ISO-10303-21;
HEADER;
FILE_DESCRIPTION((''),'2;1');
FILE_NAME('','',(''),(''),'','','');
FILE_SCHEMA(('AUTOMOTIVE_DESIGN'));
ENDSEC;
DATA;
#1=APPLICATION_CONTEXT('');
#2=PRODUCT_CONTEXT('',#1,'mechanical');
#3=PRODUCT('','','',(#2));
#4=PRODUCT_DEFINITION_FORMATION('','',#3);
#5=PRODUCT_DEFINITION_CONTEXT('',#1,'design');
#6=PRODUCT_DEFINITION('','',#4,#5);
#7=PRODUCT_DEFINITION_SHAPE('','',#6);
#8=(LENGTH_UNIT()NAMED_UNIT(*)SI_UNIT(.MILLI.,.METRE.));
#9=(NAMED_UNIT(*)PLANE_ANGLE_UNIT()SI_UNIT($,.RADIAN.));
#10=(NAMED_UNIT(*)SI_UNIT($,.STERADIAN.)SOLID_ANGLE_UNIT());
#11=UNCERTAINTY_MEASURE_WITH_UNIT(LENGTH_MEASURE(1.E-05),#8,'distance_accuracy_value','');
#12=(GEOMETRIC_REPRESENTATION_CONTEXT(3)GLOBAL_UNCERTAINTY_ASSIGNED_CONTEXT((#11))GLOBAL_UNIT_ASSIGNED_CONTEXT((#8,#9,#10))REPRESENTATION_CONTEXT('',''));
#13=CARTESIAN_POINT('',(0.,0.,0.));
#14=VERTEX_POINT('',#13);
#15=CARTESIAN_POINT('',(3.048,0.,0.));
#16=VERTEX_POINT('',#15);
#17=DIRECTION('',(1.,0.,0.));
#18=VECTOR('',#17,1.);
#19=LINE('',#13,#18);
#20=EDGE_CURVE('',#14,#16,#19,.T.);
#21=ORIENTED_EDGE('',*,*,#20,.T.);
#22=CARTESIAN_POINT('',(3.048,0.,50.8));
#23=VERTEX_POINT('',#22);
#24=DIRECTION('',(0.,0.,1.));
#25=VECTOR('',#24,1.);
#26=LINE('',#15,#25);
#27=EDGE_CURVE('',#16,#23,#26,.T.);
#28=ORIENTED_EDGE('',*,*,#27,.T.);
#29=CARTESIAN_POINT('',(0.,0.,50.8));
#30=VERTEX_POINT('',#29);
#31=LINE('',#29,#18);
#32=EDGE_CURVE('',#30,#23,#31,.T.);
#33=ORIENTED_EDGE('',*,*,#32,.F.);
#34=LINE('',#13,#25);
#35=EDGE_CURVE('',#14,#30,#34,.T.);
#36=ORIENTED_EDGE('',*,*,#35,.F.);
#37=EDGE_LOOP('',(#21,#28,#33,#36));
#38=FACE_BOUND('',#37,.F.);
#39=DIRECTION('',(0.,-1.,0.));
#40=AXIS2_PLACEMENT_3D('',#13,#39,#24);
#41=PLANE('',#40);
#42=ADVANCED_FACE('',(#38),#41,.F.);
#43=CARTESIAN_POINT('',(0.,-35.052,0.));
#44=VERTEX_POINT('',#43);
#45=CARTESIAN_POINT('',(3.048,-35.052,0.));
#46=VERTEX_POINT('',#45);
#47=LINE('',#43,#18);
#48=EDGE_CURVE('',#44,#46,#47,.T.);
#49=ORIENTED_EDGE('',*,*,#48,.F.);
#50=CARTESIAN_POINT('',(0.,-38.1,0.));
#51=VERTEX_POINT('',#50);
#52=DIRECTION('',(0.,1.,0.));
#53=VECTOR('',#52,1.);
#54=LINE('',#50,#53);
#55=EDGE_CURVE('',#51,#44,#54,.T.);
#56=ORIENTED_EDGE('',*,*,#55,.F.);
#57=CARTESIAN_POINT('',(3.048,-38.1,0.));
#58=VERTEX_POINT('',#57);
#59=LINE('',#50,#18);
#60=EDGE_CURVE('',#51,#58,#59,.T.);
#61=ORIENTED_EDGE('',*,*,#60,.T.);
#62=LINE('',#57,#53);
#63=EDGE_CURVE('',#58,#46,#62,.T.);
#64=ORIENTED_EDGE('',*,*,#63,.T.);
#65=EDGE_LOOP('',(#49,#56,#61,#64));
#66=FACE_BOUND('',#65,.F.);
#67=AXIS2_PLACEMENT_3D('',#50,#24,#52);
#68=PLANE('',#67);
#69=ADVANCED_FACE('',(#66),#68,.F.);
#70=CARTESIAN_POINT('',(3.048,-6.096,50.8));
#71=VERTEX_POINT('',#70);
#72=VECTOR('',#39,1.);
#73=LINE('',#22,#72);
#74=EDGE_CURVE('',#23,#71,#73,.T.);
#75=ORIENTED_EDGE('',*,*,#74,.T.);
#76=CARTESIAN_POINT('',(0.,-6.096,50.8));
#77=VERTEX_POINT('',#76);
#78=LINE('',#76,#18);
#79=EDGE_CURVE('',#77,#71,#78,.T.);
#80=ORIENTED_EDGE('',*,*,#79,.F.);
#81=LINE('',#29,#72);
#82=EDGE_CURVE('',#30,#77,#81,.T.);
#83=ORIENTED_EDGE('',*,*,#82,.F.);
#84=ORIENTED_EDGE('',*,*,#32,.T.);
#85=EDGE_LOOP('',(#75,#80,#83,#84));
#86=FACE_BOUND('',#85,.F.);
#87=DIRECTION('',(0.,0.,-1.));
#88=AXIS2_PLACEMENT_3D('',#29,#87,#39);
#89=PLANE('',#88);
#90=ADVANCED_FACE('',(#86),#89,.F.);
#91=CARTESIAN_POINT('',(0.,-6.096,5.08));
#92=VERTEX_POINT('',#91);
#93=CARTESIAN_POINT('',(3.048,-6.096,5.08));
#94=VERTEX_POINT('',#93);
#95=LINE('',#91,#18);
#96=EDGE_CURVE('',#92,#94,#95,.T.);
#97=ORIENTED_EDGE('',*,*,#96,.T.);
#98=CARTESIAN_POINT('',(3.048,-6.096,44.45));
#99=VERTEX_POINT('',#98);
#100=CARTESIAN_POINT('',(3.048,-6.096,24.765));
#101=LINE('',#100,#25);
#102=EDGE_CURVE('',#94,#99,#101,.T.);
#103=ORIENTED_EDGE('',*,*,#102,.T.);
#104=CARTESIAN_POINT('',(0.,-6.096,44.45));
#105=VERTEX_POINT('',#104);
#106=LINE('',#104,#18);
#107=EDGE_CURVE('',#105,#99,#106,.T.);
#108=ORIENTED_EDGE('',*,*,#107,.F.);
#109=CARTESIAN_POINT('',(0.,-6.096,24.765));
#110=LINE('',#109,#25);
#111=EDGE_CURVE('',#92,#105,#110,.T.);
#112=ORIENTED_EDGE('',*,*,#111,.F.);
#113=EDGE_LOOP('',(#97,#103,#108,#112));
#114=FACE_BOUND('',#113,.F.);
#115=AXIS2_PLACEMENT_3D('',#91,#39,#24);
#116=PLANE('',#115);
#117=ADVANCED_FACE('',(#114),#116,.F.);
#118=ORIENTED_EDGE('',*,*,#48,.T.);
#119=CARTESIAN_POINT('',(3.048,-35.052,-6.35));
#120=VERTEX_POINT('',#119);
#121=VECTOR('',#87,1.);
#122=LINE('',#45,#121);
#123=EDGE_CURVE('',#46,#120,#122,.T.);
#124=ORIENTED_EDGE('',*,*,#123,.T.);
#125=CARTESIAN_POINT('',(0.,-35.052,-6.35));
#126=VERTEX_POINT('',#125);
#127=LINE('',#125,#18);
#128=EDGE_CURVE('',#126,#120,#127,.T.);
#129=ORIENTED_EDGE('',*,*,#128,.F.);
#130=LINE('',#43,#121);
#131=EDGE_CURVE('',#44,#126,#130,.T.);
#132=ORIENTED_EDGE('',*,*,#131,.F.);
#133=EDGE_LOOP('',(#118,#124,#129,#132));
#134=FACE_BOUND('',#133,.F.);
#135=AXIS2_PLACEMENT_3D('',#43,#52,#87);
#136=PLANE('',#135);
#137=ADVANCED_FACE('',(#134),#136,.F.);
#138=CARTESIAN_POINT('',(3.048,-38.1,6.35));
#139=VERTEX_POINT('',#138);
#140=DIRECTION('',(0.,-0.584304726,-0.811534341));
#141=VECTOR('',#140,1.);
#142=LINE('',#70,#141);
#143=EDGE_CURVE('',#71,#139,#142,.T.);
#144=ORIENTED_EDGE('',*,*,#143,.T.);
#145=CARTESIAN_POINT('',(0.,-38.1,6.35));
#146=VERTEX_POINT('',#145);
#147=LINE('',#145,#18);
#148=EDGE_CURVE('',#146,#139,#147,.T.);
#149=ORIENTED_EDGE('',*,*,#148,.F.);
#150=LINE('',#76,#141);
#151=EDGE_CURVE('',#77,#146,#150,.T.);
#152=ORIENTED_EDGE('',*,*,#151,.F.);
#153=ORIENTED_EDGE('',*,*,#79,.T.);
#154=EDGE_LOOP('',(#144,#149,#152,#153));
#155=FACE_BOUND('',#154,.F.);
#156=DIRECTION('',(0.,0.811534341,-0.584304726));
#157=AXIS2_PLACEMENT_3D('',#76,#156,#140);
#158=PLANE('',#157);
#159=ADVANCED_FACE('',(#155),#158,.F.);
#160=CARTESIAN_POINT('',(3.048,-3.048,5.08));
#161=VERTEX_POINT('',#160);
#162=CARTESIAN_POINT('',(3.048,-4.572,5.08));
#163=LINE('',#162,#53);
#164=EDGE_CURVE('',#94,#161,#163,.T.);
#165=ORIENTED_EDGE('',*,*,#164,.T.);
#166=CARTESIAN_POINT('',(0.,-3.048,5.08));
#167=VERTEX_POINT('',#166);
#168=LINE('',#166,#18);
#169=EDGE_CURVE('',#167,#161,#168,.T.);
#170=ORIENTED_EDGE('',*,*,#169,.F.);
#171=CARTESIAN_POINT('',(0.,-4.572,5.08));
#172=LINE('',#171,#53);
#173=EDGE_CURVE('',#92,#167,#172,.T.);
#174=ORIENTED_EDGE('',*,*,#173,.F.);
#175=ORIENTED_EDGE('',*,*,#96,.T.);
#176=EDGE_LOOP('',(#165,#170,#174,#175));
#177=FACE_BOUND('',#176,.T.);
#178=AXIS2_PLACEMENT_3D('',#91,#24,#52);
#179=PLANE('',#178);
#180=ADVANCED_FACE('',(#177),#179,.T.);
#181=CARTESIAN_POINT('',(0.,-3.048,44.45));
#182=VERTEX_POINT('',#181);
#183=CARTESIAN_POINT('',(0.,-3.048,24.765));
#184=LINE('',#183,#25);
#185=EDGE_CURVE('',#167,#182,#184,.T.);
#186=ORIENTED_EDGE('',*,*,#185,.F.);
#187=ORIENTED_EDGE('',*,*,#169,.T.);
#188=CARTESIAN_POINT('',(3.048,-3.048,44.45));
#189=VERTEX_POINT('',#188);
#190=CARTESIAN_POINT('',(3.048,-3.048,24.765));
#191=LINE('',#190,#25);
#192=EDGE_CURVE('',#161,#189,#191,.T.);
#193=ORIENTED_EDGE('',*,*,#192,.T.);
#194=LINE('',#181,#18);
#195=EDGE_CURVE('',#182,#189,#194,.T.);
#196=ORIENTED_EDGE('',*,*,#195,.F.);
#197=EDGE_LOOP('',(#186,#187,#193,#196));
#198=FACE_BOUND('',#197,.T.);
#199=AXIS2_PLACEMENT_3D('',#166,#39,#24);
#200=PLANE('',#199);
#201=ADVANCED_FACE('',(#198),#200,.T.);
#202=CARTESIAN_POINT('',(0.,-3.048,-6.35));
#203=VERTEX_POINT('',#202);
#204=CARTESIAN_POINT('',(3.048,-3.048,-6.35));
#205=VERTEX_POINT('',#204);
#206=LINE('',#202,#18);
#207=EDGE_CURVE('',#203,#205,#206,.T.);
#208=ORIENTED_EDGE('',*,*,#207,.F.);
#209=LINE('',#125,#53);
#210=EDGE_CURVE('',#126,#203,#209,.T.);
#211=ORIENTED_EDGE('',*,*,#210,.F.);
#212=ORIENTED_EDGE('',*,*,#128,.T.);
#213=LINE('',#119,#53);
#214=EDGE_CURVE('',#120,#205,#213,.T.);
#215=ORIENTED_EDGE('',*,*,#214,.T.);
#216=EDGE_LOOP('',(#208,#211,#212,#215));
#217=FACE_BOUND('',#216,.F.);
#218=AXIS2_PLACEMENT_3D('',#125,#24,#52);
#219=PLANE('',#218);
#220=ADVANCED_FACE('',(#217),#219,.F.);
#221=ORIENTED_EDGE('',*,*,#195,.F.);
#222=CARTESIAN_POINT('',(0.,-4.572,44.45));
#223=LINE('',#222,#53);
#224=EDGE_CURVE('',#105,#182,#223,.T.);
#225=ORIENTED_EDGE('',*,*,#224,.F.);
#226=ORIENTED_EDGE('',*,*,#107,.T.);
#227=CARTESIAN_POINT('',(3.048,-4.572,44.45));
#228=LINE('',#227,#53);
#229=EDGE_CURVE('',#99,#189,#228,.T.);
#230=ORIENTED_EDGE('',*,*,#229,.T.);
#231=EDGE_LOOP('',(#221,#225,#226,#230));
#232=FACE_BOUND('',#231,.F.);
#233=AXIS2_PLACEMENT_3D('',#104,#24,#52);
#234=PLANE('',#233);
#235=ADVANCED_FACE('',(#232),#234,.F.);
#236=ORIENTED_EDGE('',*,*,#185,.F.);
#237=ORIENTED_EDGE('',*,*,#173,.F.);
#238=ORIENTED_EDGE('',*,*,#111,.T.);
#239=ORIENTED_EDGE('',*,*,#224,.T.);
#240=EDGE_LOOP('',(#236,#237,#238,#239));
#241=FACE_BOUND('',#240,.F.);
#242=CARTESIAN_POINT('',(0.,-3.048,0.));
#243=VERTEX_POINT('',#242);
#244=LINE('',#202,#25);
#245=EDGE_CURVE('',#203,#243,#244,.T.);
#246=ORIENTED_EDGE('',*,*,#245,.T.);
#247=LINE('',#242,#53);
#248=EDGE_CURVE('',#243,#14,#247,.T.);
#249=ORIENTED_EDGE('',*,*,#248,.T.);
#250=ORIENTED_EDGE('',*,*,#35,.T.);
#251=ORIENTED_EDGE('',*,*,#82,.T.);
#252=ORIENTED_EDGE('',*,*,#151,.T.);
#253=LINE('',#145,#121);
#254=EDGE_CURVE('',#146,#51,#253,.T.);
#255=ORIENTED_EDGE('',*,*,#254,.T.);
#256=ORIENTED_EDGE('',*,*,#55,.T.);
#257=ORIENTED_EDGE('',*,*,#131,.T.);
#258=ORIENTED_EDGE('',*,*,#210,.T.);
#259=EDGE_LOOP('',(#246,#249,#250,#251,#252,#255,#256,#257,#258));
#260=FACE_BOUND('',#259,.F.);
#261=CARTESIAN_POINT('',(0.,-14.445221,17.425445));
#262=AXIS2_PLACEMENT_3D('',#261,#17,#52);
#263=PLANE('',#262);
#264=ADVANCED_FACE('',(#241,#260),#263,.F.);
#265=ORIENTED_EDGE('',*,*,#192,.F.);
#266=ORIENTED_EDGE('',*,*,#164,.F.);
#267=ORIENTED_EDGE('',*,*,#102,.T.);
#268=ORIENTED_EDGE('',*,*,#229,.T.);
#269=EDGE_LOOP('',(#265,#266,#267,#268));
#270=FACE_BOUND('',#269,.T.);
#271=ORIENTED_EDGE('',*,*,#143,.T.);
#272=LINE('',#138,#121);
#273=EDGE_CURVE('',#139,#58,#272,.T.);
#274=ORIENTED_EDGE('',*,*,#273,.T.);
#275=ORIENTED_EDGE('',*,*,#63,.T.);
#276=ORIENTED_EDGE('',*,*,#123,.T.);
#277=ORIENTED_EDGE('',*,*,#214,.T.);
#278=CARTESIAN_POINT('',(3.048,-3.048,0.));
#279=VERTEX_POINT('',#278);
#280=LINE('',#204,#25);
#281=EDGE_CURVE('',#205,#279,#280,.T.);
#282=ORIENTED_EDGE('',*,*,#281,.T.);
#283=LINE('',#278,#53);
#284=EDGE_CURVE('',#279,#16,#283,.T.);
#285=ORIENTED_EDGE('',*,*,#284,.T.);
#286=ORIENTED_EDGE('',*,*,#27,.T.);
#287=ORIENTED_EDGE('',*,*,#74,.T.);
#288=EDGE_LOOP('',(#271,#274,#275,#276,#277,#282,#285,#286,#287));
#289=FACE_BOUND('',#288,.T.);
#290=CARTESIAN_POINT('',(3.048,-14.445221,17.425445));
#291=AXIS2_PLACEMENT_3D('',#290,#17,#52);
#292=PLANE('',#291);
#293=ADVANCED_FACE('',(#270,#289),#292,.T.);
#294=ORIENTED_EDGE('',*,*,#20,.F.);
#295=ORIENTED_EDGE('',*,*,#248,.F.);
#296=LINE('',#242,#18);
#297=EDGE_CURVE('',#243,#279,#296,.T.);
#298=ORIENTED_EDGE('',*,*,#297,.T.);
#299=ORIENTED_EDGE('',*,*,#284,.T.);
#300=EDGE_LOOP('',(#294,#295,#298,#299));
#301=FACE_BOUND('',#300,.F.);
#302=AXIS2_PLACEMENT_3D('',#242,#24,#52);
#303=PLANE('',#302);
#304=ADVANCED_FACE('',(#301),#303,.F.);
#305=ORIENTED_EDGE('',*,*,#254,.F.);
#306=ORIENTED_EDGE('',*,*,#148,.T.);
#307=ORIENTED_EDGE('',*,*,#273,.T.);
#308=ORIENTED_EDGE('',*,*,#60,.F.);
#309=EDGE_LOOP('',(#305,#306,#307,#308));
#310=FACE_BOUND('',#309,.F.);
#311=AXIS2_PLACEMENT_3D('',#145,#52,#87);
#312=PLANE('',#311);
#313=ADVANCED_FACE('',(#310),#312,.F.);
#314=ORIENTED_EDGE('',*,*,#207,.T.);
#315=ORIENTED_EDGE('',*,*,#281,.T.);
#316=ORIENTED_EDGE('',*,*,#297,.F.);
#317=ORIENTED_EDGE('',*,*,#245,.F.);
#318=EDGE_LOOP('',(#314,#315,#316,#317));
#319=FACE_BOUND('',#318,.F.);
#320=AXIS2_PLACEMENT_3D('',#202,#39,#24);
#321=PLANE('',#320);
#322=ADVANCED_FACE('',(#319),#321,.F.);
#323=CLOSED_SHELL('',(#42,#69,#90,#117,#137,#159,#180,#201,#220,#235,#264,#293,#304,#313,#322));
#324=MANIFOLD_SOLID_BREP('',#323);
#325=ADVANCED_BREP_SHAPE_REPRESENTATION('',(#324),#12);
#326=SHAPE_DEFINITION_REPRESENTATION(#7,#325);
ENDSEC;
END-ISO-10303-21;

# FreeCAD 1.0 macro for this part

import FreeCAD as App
import Part
import Sketcher
from FreeCAD import Vector
Q = App.Units.Quantity

doc = App.newDocument("Part")
params = doc.addObject("Spreadsheet::Sheet", "Params")
for row, (alias, value) in enumerate([
    ("sketch1_height", "2 in"),
    ("sketch1_width", "0.24 in"),
    ("sketch1_width2", "1.26 in"),
    ("sketch1_height2", "0.25 in"),
    ("sketch1_height3", "1.55 in"),
    ("pad1_length", "0.12 in"),
], start=1):
    params.set(f"A{row}", alias)
    params.set(f"B{row}", "=" + value)
    params.setAlias(f"B{row}", alias)

body = doc.addObject("PartDesign::Body", "Body")

# Sketch on YZ plane
sketch1 = doc.addObject("Sketcher::SketchObject", "Sketch")
body.addObject(sketch1)
sketch1.AttachmentSupport = (doc.YZ_Plane, [""])
sketch1.MapMode = "FlatFace"
sketch1.addGeometry([
    Part.LineSegment(Vector(0, 0, 0), Vector(0, 50.8, 0)),  # 0
    Part.LineSegment(Vector(0, 50.8, 0), Vector(-6.1, 50.8, 0)),  # 1
    Part.LineSegment(Vector(-6.1, 50.8, 0), Vector(-38.1, 6.3, 0)),  # 2
    Part.LineSegment(Vector(-38.1, 6.3, 0), Vector(-38.1, 0, 0)),  # 3
    Part.LineSegment(Vector(-38.1, 0, 0), Vector(-35.1, 0, 0)),  # 4
    Part.LineSegment(Vector(-35.1, 0, 0), Vector(-35.1, -6.3, 0)),  # 5
    Part.LineSegment(Vector(-35.1, -6.3, 0), Vector(-3, -6.3, 0)),  # 6
    Part.LineSegment(Vector(-3, -6.3, 0), Vector(-3, 0, 0)),  # 7
    Part.LineSegment(Vector(-3, 0, 0), Vector(0, 0, 0)),  # 8
    Part.LineSegment(Vector(-3, 5.1, 0), Vector(-6.1, 5.1, 0)),  # 9
    Part.LineSegment(Vector(-6.1, 5.1, 0), Vector(-6.1, 44.5, 0)),  # 10
    Part.LineSegment(Vector(-6.1, 44.5, 0), Vector(-3, 44.5, 0)),  # 11
    Part.LineSegment(Vector(-3, 44.5, 0), Vector(-3, 5.1, 0)),  # 12
], False)
sketch1.addConstraint([
    Sketcher.Constraint("Coincident", 0, 2, 1, 1),
    Sketcher.Constraint("Coincident", 1, 2, 2, 1),
    Sketcher.Constraint("Coincident", 2, 2, 3, 1),
    Sketcher.Constraint("Coincident", 3, 2, 4, 1),
    Sketcher.Constraint("Coincident", 4, 2, 5, 1),
    Sketcher.Constraint("Coincident", 5, 2, 6, 1),
    Sketcher.Constraint("Coincident", 6, 2, 7, 1),
    Sketcher.Constraint("Coincident", 7, 2, 8, 1),
    Sketcher.Constraint("Coincident", 8, 2, 0, 1),
    Sketcher.Constraint("Coincident", 9, 2, 10, 1),
    Sketcher.Constraint("Coincident", 10, 2, 11, 1),
    Sketcher.Constraint("Coincident", 11, 2, 12, 1),
    Sketcher.Constraint("Coincident", 12, 2, 9, 1),
    Sketcher.Constraint("Vertical", 0),
    Sketcher.Constraint("Horizontal", 1),
    Sketcher.Constraint("Vertical", 3),
    Sketcher.Constraint("Horizontal", 4),
    Sketcher.Constraint("Vertical", 5),
    Sketcher.Constraint("Horizontal", 6),
    Sketcher.Constraint("Vertical", 7),
    Sketcher.Constraint("Horizontal", 8),
    Sketcher.Constraint("Horizontal", 9),
    Sketcher.Constraint("Vertical", 10),
    Sketcher.Constraint("Horizontal", 11),
    Sketcher.Constraint("Vertical", 12),
    Sketcher.Constraint("Coincident", 8, 2, -1, 1),
    Sketcher.Constraint("PointOnObject", 3, 2, -1),
    Sketcher.Constraint("Vertical", 1, 2, 9, 2),
    Sketcher.Constraint("Vertical", 7, 2, 11, 2),
    Sketcher.Constraint("Equal", 4, 8),
    Sketcher.Constraint("Equal", 8, 9),
    Sketcher.Constraint("Equal", 3, 5),
    Sketcher.Constraint("DistanceY", 0, 1, 0, 2, Q("2 in")),
    Sketcher.Constraint("DistanceX", 1, 2, 1, 1, Q("0.24 in")),
    Sketcher.Constraint("DistanceX", 6, 1, 6, 2, Q("1.26 in")),
    Sketcher.Constraint("DistanceY", 3, 2, 3, 1, Q("0.25 in")),
    Sketcher.Constraint("DistanceY", 10, 1, 10, 2, Q("1.55 in")),
    Sketcher.Constraint("DistanceY", -1, 1, 9, 2, Q("0.2 in")),
])
sketch1.setExpression("Constraints[32]", "Params.sketch1_height")
sketch1.setExpression("Constraints[33]", "Params.sketch1_width")
sketch1.setExpression("Constraints[34]", "Params.sketch1_width2")
sketch1.setExpression("Constraints[35]", "Params.sketch1_height2")
sketch1.setExpression("Constraints[36]", "Params.sketch1_height3")
pad1 = doc.addObject("PartDesign::Pad", "Pad")
body.addObject(pad1)
pad1.Profile = sketch1
pad1.setExpression("Length", "Params.pad1_length")

doc.recompute()
